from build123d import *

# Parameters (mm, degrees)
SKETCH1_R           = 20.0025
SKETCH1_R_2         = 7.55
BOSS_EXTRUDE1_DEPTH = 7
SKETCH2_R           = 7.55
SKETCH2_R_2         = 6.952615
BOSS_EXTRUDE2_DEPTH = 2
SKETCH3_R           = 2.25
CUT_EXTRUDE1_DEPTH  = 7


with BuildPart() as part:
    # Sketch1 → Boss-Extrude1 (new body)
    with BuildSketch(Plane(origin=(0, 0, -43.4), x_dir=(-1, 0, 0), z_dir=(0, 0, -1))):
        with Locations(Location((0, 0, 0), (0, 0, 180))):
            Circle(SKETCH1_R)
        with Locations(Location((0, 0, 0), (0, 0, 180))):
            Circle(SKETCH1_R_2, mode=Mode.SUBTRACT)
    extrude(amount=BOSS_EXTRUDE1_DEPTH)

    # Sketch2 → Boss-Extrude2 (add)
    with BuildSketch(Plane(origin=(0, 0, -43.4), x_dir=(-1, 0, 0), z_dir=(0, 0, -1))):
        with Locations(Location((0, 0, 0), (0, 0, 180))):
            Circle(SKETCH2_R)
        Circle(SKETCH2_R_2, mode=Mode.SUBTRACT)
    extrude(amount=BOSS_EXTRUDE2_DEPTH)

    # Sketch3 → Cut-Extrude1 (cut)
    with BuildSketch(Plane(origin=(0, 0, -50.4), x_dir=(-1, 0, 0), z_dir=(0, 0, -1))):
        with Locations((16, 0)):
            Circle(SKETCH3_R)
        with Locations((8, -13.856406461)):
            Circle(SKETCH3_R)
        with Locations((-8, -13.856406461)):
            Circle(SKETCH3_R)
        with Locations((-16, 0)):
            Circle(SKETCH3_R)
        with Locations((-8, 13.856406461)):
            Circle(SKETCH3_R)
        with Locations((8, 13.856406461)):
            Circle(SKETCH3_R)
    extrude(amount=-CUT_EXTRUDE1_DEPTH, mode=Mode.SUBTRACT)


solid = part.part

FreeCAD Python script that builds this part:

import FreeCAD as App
import Part
import Sketcher

V = App.Vector

doc = App.newDocument("Part")
params = doc.addObject("Spreadsheet::Sheet", "Params")
for row, (alias, value) in enumerate([
    ("sketch1_diameter", "15.1 mm"),
    ("pad1_length", "7 mm"),
    ("sketch2_diameter", "15.1 mm"),
    ("pad2_length", "2 mm"),
    ("sketch3_diameter", "4.5 mm"),
    ("pocket1_length", "7 mm"),
], start=1):
    params.set(f"A{row}", alias)
    params.set(f"B{row}", "=" + value)
    params.setAlias(f"B{row}", alias)

body = doc.addObject("PartDesign::Body", "Body")

sketch1 = body.newObject("Sketcher::SketchObject", "Sketch")
sketch1.AttachmentSupport = (doc.getObject("XY_Plane"), [""])
sketch1.MapMode = "FlatFace"
sketch1.AttachmentOffset = App.Placement(V(0, 0, -43.4), App.Rotation())
sketch1.addGeometry([
    Part.Circle(V(0, 0, 0), V(0, 0, 1), 20.0025),
    Part.Circle(V(0, 0, 0), V(0, 0, 1), 7.55),
], False)
sketch1.addConstraint([
    Sketcher.Constraint("Coincident", 0, 3, -1, 1),
    Sketcher.Constraint("Coincident", 1, 3, -1, 1),
    Sketcher.Constraint("Diameter", 1, 15.1),
    Sketcher.Constraint("Diameter", 0, 40.005),
])
sketch1.setExpression("Constraints[2]", "Params.sketch1_diameter")
pad1 = body.newObject("PartDesign::Pad", "Pad")
pad1.Profile = sketch1
pad1.setExpression("Length", "Params.pad1_length")
pad1.Reversed = True

sketch2 = body.newObject("Sketcher::SketchObject", "Sketch001")
sketch2.AttachmentSupport = (doc.getObject("XY_Plane"), [""])
sketch2.MapMode = "FlatFace"
sketch2.AttachmentOffset = App.Placement(V(0, 0, -43.4), App.Rotation())
sketch2.addGeometry([
    Part.Circle(V(0, 0, 0), V(0, 0, 1), 7.55),
    Part.Circle(V(0, 0, 0), V(0, 0, 1), 6.952615),
], False)
sketch2.addConstraint([
    Sketcher.Constraint("Coincident", 0, 3, -1, 1),
    Sketcher.Constraint("Coincident", 1, 3, -1, 1),
    Sketcher.Constraint("Diameter", 0, 15.1),
    Sketcher.Constraint("Diameter", 1, 13.90523),
])
sketch2.setExpression("Constraints[2]", "Params.sketch2_diameter")
pad2 = body.newObject("PartDesign::Pad", "Pad001")
pad2.Profile = sketch2
pad2.setExpression("Length", "Params.pad2_length")
pad2.Reversed = True

sketch3 = body.newObject("Sketcher::SketchObject", "Sketch002")
sketch3.AttachmentSupport = (doc.getObject("XY_Plane"), [""])
sketch3.MapMode = "FlatFace"
sketch3.AttachmentOffset = App.Placement(V(0, 0, -50.4), App.Rotation())
sketch3.addGeometry([
    Part.Circle(V(-16, 0, 0), V(0, 0, 1), 2.25),
    Part.Circle(V(-8, -13.856406, 0), V(0, 0, 1), 2.25),
    Part.Circle(V(8, -13.856406, 0), V(0, 0, 1), 2.25),
    Part.Circle(V(16, 0, 0), V(0, 0, 1), 2.25),
    Part.Circle(V(8, 13.856406, 0), V(0, 0, 1), 2.25),
    Part.Circle(V(-8, 13.856406, 0), V(0, 0, 1), 2.25),
], False)
sketch3.addConstraint([
    Sketcher.Constraint("Equal", 0, 1),
    Sketcher.Constraint("Equal", 1, 2),
    Sketcher.Constraint("Equal", 2, 3),
    Sketcher.Constraint("Equal", 3, 4),
    Sketcher.Constraint("Equal", 4, 5),
    Sketcher.Constraint("Symmetric", 0, 3, 3, 3, -1, 1),
    Sketcher.Constraint("Symmetric", 1, 3, 4, 3, -1, 1),
    Sketcher.Constraint("Symmetric", 2, 3, 5, 3, -1, 1),
    Sketcher.Constraint("Symmetric", 1, 3, 2, 3, -2),
    Sketcher.Constraint("PointOnObject", 0, 3, -1),
    Sketcher.Constraint("Diameter", 0, 4.5),
    Sketcher.Constraint("DistanceX", 0, 3, -1, 1, 16.0),
    Sketcher.Constraint("DistanceX", 1, 3, -1, 1, 8.0),
    Sketcher.Constraint("DistanceY", 1, 3, -1, 1, 13.856406),
])
sketch3.setExpression("Constraints[10]", "Params.sketch3_diameter")
pocket1 = body.newObject("PartDesign::Pocket", "Pocket")
pocket1.Profile = sketch3
pocket1.setExpression("Length", "Params.pocket1_length")
pocket1.Reversed = True

doc.recompute()
